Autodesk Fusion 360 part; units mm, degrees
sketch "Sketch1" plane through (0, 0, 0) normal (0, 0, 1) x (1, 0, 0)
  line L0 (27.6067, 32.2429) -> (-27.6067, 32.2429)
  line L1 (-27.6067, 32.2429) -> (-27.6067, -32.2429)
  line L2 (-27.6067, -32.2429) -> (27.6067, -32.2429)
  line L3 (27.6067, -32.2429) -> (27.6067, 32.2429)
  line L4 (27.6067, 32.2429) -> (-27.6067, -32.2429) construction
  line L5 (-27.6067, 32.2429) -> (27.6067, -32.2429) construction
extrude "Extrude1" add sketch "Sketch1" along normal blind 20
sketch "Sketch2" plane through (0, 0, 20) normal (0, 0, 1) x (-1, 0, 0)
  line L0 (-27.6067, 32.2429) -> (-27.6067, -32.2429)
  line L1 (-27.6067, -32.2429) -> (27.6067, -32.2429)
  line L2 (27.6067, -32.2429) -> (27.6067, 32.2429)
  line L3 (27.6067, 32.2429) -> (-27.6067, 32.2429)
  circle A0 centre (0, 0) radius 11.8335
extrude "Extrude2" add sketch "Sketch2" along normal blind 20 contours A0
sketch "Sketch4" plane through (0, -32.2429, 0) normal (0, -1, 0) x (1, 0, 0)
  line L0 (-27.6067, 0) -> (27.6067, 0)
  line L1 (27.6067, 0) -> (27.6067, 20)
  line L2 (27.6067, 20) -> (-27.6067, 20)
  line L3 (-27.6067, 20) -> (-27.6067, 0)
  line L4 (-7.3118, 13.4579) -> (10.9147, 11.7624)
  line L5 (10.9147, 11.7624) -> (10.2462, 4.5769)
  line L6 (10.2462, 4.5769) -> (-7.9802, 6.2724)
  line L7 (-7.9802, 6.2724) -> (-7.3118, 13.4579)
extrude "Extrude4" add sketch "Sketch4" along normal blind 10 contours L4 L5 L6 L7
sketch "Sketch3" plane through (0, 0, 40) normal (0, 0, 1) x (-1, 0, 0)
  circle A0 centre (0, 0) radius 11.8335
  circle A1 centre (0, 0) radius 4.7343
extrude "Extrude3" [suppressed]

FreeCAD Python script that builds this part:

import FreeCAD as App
import Part
import Sketcher

V = App.Vector


def add_polygon(sketch, points):
    """Adds a closed chain of lines whose ends are joined by coincident constraints."""
    first, n = sketch.GeometryCount, len(points)
    for a, b in zip(points, points[1:] + points[:1]):
        sketch.addGeometry(Part.LineSegment(App.Vector(*a, 0), App.Vector(*b, 0)), False)
    for i in range(n):
        sketch.addConstraint(Sketcher.Constraint("Coincident", first + i, 2, first + (i + 1) % n, 1))

doc = App.newDocument("Part")
body = doc.addObject("PartDesign::Body", "Body")

# Sketch on XY plane
sketch1 = body.newObject("Sketcher::SketchObject", "Sketch")
sketch1.AttachmentSupport = (doc.getObject("XY_Plane"), [""])
sketch1.MapMode = "FlatFace"
add_polygon(sketch1, [(28, -32), (28, 32), (-28, 32), (-28, -32)])  # lines 0-3
sketch1.addConstraint([
    Sketcher.Constraint("Vertical", 0),
    Sketcher.Constraint("Horizontal", 1),
    Sketcher.Constraint("Vertical", 2),
    Sketcher.Constraint("Horizontal", 3),
    Sketcher.Constraint("Symmetric", 0, 2, 2, 2, -1, 1),
    Sketcher.Constraint("DistanceX", 1, 2, 1, 1, 55.2134),
    Sketcher.Constraint("DistanceY", 0, 1, 0, 2, 64.4858),
])
pad1 = body.newObject("PartDesign::Pad", "Pad")
pad1.Profile = sketch1
pad1.Length = 20

# Sketch on XY plane
sketch2 = body.newObject("Sketcher::SketchObject", "Sketch001")
sketch2.AttachmentSupport = (doc.getObject("XY_Plane"), [""])
sketch2.MapMode = "FlatFace"
sketch2.AttachmentOffset = App.Placement(V(0, 0, 20), App.Rotation())
sketch2.addGeometry(Part.Circle(V(0, 0, 0), V(0, 0, 1), 12), False)
sketch2.addConstraint([
    Sketcher.Constraint("Coincident", 0, 3, -1, 1),
    Sketcher.Constraint("Diameter", 0, 23.667),
])
pad2 = body.newObject("PartDesign::Pad", "Pad001")
pad2.Profile = sketch2
pad2.Length = 20

# Sketch on XZ plane
sketch3 = body.newObject("Sketcher::SketchObject", "Sketch002")
sketch3.AttachmentSupport = (doc.getObject("XZ_Plane"), [""])
sketch3.MapMode = "FlatFace"
sketch3.AttachmentOffset = App.Placement(V(0, 0, 32.2429), App.Rotation())
add_polygon(sketch3, [(11, 12), (-7, 13), (-8, 6), (10, 5)])  # lines 0-3
sketch3.addConstraint([
    Sketcher.Constraint("Perpendicular", 0, 1),
    Sketcher.Constraint("Perpendicular", 1, 2),
    Sketcher.Constraint("Perpendicular", 2, 3),
    Sketcher.Constraint("DistanceY", 1, 2, 3, 2, 5.49),
    Sketcher.Constraint("Distance", 2, 18.305),
    Sketcher.Constraint("DistanceY", -1, 1, 0, 2, 13.458),
    Sketcher.Constraint("DistanceY", -1, 1, 2, 2, 4.577),
    Sketcher.Constraint("DistanceX", 0, 2, -1, 1, 7.3118),
])
pad3 = body.newObject("PartDesign::Pad", "Pad002")
pad3.Profile = sketch3
pad3.Length = 10

doc.recompute()
